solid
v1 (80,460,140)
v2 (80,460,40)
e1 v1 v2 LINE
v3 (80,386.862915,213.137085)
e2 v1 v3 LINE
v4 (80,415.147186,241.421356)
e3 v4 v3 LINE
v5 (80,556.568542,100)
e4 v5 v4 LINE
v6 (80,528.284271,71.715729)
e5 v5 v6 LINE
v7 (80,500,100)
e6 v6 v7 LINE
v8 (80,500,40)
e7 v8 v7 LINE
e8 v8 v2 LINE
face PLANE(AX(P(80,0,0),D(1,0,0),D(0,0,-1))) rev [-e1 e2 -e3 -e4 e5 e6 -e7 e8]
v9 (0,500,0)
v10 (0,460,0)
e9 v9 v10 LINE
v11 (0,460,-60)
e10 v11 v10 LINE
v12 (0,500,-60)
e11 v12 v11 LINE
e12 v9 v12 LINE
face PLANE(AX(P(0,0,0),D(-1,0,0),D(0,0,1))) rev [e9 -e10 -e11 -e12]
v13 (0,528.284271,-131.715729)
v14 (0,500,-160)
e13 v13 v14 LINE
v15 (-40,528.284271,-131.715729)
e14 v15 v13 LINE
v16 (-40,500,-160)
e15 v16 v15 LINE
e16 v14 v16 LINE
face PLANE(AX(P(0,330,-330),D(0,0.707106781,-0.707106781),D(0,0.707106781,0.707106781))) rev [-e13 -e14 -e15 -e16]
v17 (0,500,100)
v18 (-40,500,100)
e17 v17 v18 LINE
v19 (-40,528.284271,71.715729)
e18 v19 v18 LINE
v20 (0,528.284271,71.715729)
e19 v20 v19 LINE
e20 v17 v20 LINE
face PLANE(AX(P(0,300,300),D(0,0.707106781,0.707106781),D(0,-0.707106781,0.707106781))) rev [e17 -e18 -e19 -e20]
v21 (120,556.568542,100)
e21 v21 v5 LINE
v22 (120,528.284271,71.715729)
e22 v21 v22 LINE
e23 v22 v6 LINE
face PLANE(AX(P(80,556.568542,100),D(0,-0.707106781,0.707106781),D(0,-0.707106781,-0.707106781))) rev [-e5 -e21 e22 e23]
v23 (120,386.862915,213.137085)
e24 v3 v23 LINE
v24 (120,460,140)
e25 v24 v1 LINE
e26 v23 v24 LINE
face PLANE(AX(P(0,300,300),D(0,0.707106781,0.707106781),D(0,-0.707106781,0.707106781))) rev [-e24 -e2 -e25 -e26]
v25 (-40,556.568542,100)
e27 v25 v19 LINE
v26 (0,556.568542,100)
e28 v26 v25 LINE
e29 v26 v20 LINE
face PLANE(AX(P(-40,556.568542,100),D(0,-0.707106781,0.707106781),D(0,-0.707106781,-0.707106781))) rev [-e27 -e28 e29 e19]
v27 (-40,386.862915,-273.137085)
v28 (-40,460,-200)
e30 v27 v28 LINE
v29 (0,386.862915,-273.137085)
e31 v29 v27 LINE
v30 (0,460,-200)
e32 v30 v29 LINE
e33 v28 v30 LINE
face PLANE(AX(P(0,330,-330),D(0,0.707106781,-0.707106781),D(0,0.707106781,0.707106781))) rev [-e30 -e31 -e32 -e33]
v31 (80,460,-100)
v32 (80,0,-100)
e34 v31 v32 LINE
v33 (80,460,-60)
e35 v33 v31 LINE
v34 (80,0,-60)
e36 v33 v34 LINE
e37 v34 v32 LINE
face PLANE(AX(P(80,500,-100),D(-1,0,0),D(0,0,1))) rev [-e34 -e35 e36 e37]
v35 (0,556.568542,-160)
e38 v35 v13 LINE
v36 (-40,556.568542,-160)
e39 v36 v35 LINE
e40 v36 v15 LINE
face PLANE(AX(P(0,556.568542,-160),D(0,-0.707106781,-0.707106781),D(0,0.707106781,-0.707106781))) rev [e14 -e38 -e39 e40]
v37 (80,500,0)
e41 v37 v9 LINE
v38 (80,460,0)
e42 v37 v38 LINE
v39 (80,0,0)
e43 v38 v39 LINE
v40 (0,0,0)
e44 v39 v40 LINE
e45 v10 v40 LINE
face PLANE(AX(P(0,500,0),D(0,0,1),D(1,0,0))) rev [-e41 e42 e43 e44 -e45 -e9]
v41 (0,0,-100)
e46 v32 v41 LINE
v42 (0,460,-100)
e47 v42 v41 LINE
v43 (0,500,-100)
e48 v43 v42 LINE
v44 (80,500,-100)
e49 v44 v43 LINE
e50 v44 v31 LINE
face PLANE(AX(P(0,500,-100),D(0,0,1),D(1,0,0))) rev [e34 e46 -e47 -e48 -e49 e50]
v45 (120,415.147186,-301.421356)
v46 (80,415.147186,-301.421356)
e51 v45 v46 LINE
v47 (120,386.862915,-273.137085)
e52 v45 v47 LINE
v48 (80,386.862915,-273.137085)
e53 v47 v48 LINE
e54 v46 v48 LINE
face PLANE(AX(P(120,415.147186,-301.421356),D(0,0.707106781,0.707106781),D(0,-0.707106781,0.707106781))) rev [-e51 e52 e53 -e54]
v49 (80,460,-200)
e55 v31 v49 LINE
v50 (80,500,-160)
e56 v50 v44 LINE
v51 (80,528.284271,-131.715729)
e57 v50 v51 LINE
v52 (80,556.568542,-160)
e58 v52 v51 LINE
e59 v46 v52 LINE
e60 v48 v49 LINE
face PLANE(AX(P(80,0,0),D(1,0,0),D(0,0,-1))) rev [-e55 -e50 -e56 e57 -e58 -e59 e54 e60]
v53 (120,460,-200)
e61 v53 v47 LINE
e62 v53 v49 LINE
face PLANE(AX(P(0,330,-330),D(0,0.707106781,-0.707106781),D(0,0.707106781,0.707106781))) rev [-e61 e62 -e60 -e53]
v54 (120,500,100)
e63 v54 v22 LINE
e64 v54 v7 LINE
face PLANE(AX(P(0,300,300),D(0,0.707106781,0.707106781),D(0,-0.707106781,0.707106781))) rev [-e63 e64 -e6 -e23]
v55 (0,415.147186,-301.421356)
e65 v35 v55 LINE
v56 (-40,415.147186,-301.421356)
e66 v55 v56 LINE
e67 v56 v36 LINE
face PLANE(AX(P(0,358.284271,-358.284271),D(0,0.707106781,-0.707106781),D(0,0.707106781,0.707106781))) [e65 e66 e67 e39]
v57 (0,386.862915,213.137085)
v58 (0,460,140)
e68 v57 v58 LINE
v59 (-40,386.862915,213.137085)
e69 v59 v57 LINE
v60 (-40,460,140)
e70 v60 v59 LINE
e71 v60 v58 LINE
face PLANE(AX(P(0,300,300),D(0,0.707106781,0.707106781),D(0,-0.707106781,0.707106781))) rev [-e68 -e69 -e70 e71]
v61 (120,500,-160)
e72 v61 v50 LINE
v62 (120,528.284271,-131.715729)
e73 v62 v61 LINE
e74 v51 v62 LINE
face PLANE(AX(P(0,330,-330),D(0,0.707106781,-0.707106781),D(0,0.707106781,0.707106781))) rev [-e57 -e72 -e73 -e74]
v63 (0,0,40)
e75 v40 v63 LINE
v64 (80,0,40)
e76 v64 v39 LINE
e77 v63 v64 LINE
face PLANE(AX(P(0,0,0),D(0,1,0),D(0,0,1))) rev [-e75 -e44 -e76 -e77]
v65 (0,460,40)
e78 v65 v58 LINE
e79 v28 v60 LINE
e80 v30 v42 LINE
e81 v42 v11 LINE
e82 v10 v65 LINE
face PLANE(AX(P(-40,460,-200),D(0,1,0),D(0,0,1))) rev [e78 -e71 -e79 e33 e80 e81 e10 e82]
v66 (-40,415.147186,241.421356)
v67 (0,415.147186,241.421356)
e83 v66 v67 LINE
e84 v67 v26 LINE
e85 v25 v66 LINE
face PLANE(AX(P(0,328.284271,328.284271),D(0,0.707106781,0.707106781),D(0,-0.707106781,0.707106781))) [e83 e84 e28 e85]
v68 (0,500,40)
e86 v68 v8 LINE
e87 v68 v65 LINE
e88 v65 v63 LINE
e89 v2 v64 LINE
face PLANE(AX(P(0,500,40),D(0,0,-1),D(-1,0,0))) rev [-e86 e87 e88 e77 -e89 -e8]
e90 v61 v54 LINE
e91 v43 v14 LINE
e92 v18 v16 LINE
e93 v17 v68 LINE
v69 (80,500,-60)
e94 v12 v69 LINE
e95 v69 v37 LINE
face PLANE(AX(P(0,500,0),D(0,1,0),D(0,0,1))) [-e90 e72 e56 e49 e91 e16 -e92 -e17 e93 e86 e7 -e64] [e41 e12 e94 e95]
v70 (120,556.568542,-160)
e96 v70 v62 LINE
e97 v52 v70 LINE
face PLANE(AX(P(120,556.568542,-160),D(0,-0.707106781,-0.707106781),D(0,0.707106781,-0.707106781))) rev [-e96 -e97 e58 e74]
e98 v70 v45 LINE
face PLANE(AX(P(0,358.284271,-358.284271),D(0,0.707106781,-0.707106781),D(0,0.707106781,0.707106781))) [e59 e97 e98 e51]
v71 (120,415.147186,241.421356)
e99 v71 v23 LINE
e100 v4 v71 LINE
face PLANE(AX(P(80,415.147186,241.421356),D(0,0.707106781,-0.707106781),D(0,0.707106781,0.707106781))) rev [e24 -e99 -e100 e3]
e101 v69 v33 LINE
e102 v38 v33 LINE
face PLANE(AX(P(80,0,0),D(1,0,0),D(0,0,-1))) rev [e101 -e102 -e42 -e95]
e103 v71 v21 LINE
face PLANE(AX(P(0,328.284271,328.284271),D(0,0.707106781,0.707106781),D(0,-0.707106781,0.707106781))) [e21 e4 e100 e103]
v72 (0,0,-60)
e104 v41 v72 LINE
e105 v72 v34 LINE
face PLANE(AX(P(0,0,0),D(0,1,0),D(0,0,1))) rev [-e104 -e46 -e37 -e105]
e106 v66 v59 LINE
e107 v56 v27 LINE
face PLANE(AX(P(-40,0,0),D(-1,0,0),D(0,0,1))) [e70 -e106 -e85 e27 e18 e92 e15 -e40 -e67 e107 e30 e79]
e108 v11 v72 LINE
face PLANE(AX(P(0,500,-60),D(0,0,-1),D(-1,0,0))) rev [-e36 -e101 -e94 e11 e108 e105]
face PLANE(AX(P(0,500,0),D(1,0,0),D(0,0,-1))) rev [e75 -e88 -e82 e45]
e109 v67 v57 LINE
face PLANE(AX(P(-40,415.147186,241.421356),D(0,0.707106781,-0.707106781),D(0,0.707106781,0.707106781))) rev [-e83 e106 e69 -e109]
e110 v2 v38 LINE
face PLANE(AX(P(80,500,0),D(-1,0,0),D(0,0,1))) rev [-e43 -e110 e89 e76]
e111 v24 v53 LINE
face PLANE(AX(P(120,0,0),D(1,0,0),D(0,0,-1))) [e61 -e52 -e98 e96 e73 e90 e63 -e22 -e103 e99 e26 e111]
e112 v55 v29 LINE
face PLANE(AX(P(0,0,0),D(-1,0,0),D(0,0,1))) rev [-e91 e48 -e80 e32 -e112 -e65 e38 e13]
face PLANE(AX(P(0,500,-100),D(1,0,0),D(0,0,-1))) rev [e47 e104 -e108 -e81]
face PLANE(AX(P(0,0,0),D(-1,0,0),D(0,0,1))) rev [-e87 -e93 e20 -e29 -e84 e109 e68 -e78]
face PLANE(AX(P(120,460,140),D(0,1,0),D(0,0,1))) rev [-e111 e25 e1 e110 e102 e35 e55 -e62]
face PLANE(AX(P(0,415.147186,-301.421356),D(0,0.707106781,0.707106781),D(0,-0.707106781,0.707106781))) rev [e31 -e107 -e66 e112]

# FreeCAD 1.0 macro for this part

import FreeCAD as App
import Part
import Sketcher

doc = App.newDocument("Part")
body = doc.addObject("PartDesign::Body", "Body")

# Sketch on XZ plane
sketch1 = doc.addObject("Sketcher::SketchObject", "Sketch")
body.addObject(sketch1)
sketch1.AttachmentSupport = (doc.XZ_Plane, [""])
sketch1.MapMode = "FlatFace"
sketch1.addGeometry([
    Part.LineSegment(App.Vector(0, 0, 0), App.Vector(0, 40, 0)),
    Part.LineSegment(App.Vector(0, 40, 0), App.Vector(80, 40, 0)),
    Part.LineSegment(App.Vector(80, 40, 0), App.Vector(80, 0, 0)),
    Part.LineSegment(App.Vector(80, 0, 0), App.Vector(0, 0, 0)),
], False)
sketch1.addConstraint([
    Sketcher.Constraint("Coincident", 0, 2, 1, 1),
    Sketcher.Constraint("Coincident", 1, 2, 2, 1),
    Sketcher.Constraint("Coincident", 2, 2, 3, 1),
    Sketcher.Constraint("Coincident", 3, 2, 0, 1),
    Sketcher.Constraint("Vertical", 0),
    Sketcher.Constraint("Horizontal", 1),
    Sketcher.Constraint("Vertical", 2),
    Sketcher.Constraint("Horizontal", 3),
    Sketcher.Constraint("Coincident", 3, 2, -1, 1),
    Sketcher.Constraint("DistanceX", 1, 1, 1, 2, 80.0),
    Sketcher.Constraint("DistanceY", 0, 1, 0, 2, 40.0),
])
pad1 = doc.addObject("PartDesign::Pad", "Pad")
body.addObject(pad1)
pad1.Profile = sketch1
pad1.Length = 500
pad1.Reversed = True
body2 = doc.addObject("PartDesign::Body", "Body001")

# Sketch on XZ plane
sketch2 = doc.addObject("Sketcher::SketchObject", "Sketch001")
body2.addObject(sketch2)
sketch2.AttachmentSupport = (doc.getObject("XZ_Plane001"), [""])
sketch2.MapMode = "FlatFace"
sketch2.addGeometry([
    Part.LineSegment(App.Vector(0, -100, 0), App.Vector(0, -60, 0)),
    Part.LineSegment(App.Vector(0, -60, 0), App.Vector(80, -60, 0)),
    Part.LineSegment(App.Vector(80, -60, 0), App.Vector(80, -100, 0)),
    Part.LineSegment(App.Vector(80, -100, 0), App.Vector(0, -100, 0)),
], False)
sketch2.addConstraint([
    Sketcher.Constraint("Coincident", 0, 2, 1, 1),
    Sketcher.Constraint("Coincident", 1, 2, 2, 1),
    Sketcher.Constraint("Coincident", 2, 2, 3, 1),
    Sketcher.Constraint("Coincident", 3, 2, 0, 1),
    Sketcher.Constraint("Vertical", 0),
    Sketcher.Constraint("Horizontal", 1),
    Sketcher.Constraint("Vertical", 2),
    Sketcher.Constraint("Horizontal", 3),
    Sketcher.Constraint("PointOnObject", 0, 2, -2),
    Sketcher.Constraint("DistanceX", 1, 1, 1, 2, 80.0),
    Sketcher.Constraint("DistanceY", 0, 1, 0, 2, 40.0),
    Sketcher.Constraint("DistanceY", 0, 2, -1, 1, 60.0),
])
pad2 = doc.addObject("PartDesign::Pad", "Pad001")
body2.addObject(pad2)
pad2.Profile = sketch2
pad2.Length = 500
pad2.Reversed = True
body.AllowCompound = True
doc.recompute()

boolean = doc.addObject("PartDesign::Boolean", "Boolean")
body.addObject(boolean)
boolean.Type = "Fuse"
boolean.addObjects([body2])

# Sketch on YZ plane
sketch3 = doc.addObject("Sketcher::SketchObject", "Sketch002")
body.addObject(sketch3)
sketch3.AttachmentSupport = (doc.YZ_Plane, [""])
sketch3.MapMode = "FlatFace"
sketch3.AttachmentOffset = App.Placement(App.Vector(0, 0, 80), App.Rotation())
sketch3.addGeometry([
    Part.LineSegment(App.Vector(500, 140, 0), App.Vector(460, 140, 0)),
    Part.LineSegment(App.Vector(460, 140, 0), App.Vector(460, -200, 0)),
    Part.LineSegment(App.Vector(460, -200, 0), App.Vector(500, -200, 0)),
    Part.LineSegment(App.Vector(500, -200, 0), App.Vector(500, 140, 0)),
], False)
sketch3.addConstraint([
    Sketcher.Constraint("Coincident", 0, 2, 1, 1),
    Sketcher.Constraint("Coincident", 1, 2, 2, 1),
    Sketcher.Constraint("Coincident", 2, 2, 3, 1),
    Sketcher.Constraint("Coincident", 3, 2, 0, 1),
    Sketcher.Constraint("Horizontal", 0),
    Sketcher.Constraint("Vertical", 1),
    Sketcher.Constraint("Horizontal", 2),
    Sketcher.Constraint("Vertical", 3),
    Sketcher.Constraint("DistanceX", 0, 2, 0, 1, 40.0),
    Sketcher.Constraint("DistanceY", 1, 2, 1, 1, 340.0),
    Sketcher.Constraint("DistanceX", -1, 1, 0, 2, 460.0),
    Sketcher.Constraint("DistanceY", -1, 1, 0, 2, 140.0),
])
pad3 = doc.addObject("PartDesign::Pad", "Pad002")
body.addObject(pad3)
pad3.Profile = sketch3
pad3.Length = 40

# Sketch on YZ plane
sketch4 = doc.addObject("Sketcher::SketchObject", "Sketch003")
body.addObject(sketch4)
sketch4.AttachmentSupport = (doc.YZ_Plane, [""])
sketch4.MapMode = "FlatFace"
sketch4.addGeometry([
    Part.LineSegment(App.Vector(500, -200, 0), App.Vector(460, -200, 0)),
    Part.LineSegment(App.Vector(460, -200, 0), App.Vector(460, 140, 0)),
    Part.LineSegment(App.Vector(460, 140, 0), App.Vector(500, 140, 0)),
    Part.LineSegment(App.Vector(500, 140, 0), App.Vector(500, -200, 0)),
], False)
sketch4.addConstraint([
    Sketcher.Constraint("Coincident", 0, 2, 1, 1),
    Sketcher.Constraint("Coincident", 1, 2, 2, 1),
    Sketcher.Constraint("Coincident", 2, 2, 3, 1),
    Sketcher.Constraint("Coincident", 3, 2, 0, 1),
    Sketcher.Constraint("Horizontal", 0),
    Sketcher.Constraint("Vertical", 1),
    Sketcher.Constraint("Horizontal", 2),
    Sketcher.Constraint("Vertical", 3),
    Sketcher.Constraint("DistanceX", 0, 2, 0, 1, 40.0),
    Sketcher.Constraint("DistanceY", 1, 1, 1, 2, 340.0),
    Sketcher.Constraint("DistanceX", -1, 1, 0, 2, 460.0),
    Sketcher.Constraint("DistanceY", 0, 2, -1, 1, 200.0),
])
pad4 = doc.addObject("PartDesign::Pad", "Pad003")
body.addObject(pad4)
pad4.Profile = sketch4
pad4.Length = 40
pad4.Reversed = True

# Sketch on YZ plane
sketch5 = doc.addObject("Sketcher::SketchObject", "Sketch004")
body.addObject(sketch5)
sketch5.AttachmentSupport = (doc.YZ_Plane, [""])
sketch5.MapMode = "FlatFace"
sketch5.AttachmentOffset = App.Placement(App.Vector(0, 0, -40), App.Rotation())
sketch5.addGeometry([
    Part.LineSegment(App.Vector(500, 100, 0), App.Vector(460, 140, 0)),  # 0
    Part.LineSegment(App.Vector(460, 140, 0), App.Vector(500, 140, 0)),  # 1
    Part.LineSegment(App.Vector(500, 140, 0), App.Vector(500, 100, 0)),  # 2
    Part.LineSegment(App.Vector(460, -200, 0), App.Vector(500, -160, 0)),  # 3
    Part.LineSegment(App.Vector(500, -160, 0), App.Vector(500, -200, 0)),  # 4
    Part.LineSegment(App.Vector(500, -200, 0), App.Vector(460, -200, 0)),  # 5
], False)
sketch5.addConstraint([
    Sketcher.Constraint("Coincident", 0, 2, 1, 1),
    Sketcher.Constraint("Coincident", 1, 2, 2, 1),
    Sketcher.Constraint("Coincident", 2, 2, 0, 1),
    Sketcher.Constraint("Coincident", 3, 2, 4, 1),
    Sketcher.Constraint("Coincident", 4, 2, 5, 1),
    Sketcher.Constraint("Coincident", 5, 2, 3, 1),
    Sketcher.Constraint("Horizontal", 1),
    Sketcher.Constraint("Vertical", 2),
    Sketcher.Constraint("Vertical", 4),
    Sketcher.Constraint("Horizontal", 5),
    Sketcher.Constraint("Perpendicular", 0, 3),
    Sketcher.Constraint("Vertical", 2, 2, 3, 2),
    Sketcher.Constraint("Vertical", 0, 2, 5, 2),
    Sketcher.Constraint("Equal", 5, 2),
    Sketcher.Constraint("DistanceX", 1, 1, 1, 2, 40.0),
    Sketcher.Constraint("DistanceX", -1, 1, 0, 2, 460.0),
    Sketcher.Constraint("DistanceY", -1, 1, 0, 2, 140.0),
    Sketcher.Constraint("DistanceY", 3, 2, -1, 1, 160.0),
])
pocket1 = doc.addObject("PartDesign::Pocket", "Pocket")
body.addObject(pocket1)
pocket1.Profile = sketch5
pocket1.Type = "ThroughAll"
pocket1.Midplane = True

# Sketch on an angled plane
sketch6 = doc.addObject("Sketcher::SketchObject", "Sketch005")
body.addObject(sketch6)
sketch6.Placement = App.Placement(App.Vector(0, 300, 300), App.Rotation(App.Vector(1, 0, 0), App.Vector(0, 0.707106781, -0.707106781), App.Vector(0, 0.707106781, 0.707106781), "ZXY"))
sketch6.addGeometry([
    Part.LineSegment(App.Vector(-40, 323, 0), App.Vector(-40, 123, 0)),  # 0
    Part.LineSegment(App.Vector(-40, 123, 0), App.Vector(0, 123, 0)),  # 1
    Part.LineSegment(App.Vector(0, 123, 0), App.Vector(0, 323, 0)),  # 2
    Part.LineSegment(App.Vector(0, 323, 0), App.Vector(-40, 323, 0)),  # 3
    Part.LineSegment(App.Vector(80, 323, 0), App.Vector(80, 123, 0)),  # 4
    Part.LineSegment(App.Vector(80, 123, 0), App.Vector(120, 123, 0)),  # 5
    Part.LineSegment(App.Vector(120, 123, 0), App.Vector(120, 323, 0)),  # 6
    Part.LineSegment(App.Vector(120, 323, 0), App.Vector(80, 323, 0)),  # 7
], False)
sketch6.addConstraint([
    Sketcher.Constraint("Coincident", 0, 2, 1, 1),
    Sketcher.Constraint("Coincident", 1, 2, 2, 1),
    Sketcher.Constraint("Coincident", 2, 2, 3, 1),
    Sketcher.Constraint("Coincident", 3, 2, 0, 1),
    Sketcher.Constraint("Coincident", 4, 2, 5, 1),
    Sketcher.Constraint("Coincident", 5, 2, 6, 1),
    Sketcher.Constraint("Coincident", 6, 2, 7, 1),
    Sketcher.Constraint("Coincident", 7, 2, 4, 1),
    Sketcher.Constraint("Vertical", 0),
    Sketcher.Constraint("Horizontal", 1),
    Sketcher.Constraint("Vertical", 2),
    Sketcher.Constraint("Horizontal", 3),
    Sketcher.Constraint("Vertical", 4),
    Sketcher.Constraint("Horizontal", 5),
    Sketcher.Constraint("Vertical", 6),
    Sketcher.Constraint("Horizontal", 7),
    Sketcher.Constraint("PointOnObject", 1, 2, -2),
    Sketcher.Constraint("Horizontal", 1, 2, 4, 2),
    Sketcher.Constraint("Horizontal", 3, 2, 6, 2),
    Sketcher.Constraint("Equal", 3, 5),
    Sketcher.Constraint("DistanceX", 1, 1, 1, 2, 40.0),
    Sketcher.Constraint("DistanceY", 0, 2, 0, 1, 200.0),
    Sketcher.Constraint("DistanceX", -1, 1, 4, 2, 80.0),
    Sketcher.Constraint("DistanceY", -1, 1, 0, 2, 122.842712),
])
pad5 = doc.addObject("PartDesign::Pad", "Pad004")
body.addObject(pad5)
pad5.Profile = sketch6
pad5.Length = 40

# Sketch on an angled plane
sketch7 = doc.addObject("Sketcher::SketchObject", "Sketch006")
body.addObject(sketch7)
sketch7.Placement = App.Placement(App.Vector(0, 330, -330), App.Rotation(App.Vector(1, 0, 0), App.Vector(0, -0.707106781, -0.707106781), App.Vector(0, 0.707106781, -0.707106781), "ZXY"))
sketch7.addGeometry([
    Part.LineSegment(App.Vector(80, -80, 0), App.Vector(80, -280, 0)),  # 0
    Part.LineSegment(App.Vector(80, -280, 0), App.Vector(120, -280, 0)),  # 1
    Part.LineSegment(App.Vector(120, -280, 0), App.Vector(120, -80, 0)),  # 2
    Part.LineSegment(App.Vector(120, -80, 0), App.Vector(80, -80, 0)),  # 3
    Part.LineSegment(App.Vector(-40, -80, 0), App.Vector(-40, -280, 0)),  # 4
    Part.LineSegment(App.Vector(-40, -280, 0), App.Vector(0, -280, 0)),  # 5
    Part.LineSegment(App.Vector(0, -280, 0), App.Vector(0, -80, 0)),  # 6
    Part.LineSegment(App.Vector(0, -80, 0), App.Vector(-40, -80, 0)),  # 7
], False)
sketch7.addConstraint([
    Sketcher.Constraint("Coincident", 0, 2, 1, 1),
    Sketcher.Constraint("Coincident", 1, 2, 2, 1),
    Sketcher.Constraint("Coincident", 2, 2, 3, 1),
    Sketcher.Constraint("Coincident", 3, 2, 0, 1),
    Sketcher.Constraint("Coincident", 4, 2, 5, 1),
    Sketcher.Constraint("Coincident", 5, 2, 6, 1),
    Sketcher.Constraint("Coincident", 6, 2, 7, 1),
    Sketcher.Constraint("Coincident", 7, 2, 4, 1),
    Sketcher.Constraint("Vertical", 0),
    Sketcher.Constraint("Horizontal", 1),
    Sketcher.Constraint("Vertical", 2),
    Sketcher.Constraint("Horizontal", 3),
    Sketcher.Constraint("Vertical", 4),
    Sketcher.Constraint("Horizontal", 5),
    Sketcher.Constraint("Vertical", 6),
    Sketcher.Constraint("Horizontal", 7),
    Sketcher.Constraint("PointOnObject", 5, 2, -2),
    Sketcher.Constraint("Horizontal", 1, 2, 4, 2),
    Sketcher.Constraint("Horizontal", 3, 2, 6, 2),
    Sketcher.Constraint("Equal", 3, 5),
    Sketcher.Constraint("DistanceX", 1, 1, 1, 2, 40.0),
    Sketcher.Constraint("DistanceY", 0, 2, 0, 1, 200.0),
    Sketcher.Constraint("DistanceX", -1, 1, 0, 2, 80.0),
    Sketcher.Constraint("DistanceY", 0, 2, -1, 1, 280.416305),
])
pad6 = doc.addObject("PartDesign::Pad", "Pad005")
body.addObject(pad6)
pad6.Profile = sketch7
pad6.Length = 40

doc.recompute()
